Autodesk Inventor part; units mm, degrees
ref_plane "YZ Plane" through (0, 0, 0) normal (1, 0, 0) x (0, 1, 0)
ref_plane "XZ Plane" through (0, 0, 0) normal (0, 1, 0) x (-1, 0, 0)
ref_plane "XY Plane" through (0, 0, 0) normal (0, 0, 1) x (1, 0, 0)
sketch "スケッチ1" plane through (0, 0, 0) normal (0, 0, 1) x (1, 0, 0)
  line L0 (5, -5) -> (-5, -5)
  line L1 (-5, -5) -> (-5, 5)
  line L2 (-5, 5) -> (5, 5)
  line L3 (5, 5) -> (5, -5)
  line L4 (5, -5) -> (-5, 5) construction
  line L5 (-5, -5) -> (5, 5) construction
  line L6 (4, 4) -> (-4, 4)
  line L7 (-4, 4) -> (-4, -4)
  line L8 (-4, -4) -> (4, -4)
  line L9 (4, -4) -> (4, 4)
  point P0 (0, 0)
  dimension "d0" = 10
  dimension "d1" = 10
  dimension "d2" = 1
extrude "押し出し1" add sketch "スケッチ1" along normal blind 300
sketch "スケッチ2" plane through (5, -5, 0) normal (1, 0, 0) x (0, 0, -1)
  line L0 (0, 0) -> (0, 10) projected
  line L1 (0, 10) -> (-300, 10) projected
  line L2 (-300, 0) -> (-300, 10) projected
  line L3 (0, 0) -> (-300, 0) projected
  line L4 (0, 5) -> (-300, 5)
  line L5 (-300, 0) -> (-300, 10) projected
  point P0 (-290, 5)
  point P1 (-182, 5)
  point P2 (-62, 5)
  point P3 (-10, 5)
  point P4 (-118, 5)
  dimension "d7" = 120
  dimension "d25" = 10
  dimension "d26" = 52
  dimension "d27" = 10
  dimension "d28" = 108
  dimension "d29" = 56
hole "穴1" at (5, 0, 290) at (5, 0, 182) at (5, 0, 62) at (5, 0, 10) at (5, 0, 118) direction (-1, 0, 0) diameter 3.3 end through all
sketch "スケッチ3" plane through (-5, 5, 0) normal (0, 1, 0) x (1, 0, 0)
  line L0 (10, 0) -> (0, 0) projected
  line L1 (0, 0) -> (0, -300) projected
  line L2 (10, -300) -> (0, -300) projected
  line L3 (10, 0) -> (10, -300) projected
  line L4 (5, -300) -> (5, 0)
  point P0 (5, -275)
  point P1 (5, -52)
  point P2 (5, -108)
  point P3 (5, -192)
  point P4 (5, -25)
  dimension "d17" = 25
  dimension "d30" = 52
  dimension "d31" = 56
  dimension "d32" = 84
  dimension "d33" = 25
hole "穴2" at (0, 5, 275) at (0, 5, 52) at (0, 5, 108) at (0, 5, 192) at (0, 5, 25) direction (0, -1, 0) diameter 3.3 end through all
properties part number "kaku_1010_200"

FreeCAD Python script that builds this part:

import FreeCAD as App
import Part
import Sketcher


def add_polygon(sketch, points):
    """Adds a closed chain of lines whose ends are joined by coincident constraints."""
    first, n = sketch.GeometryCount, len(points)
    for a, b in zip(points, points[1:] + points[:1]):
        sketch.addGeometry(Part.LineSegment(App.Vector(*a, 0), App.Vector(*b, 0)), False)
    for i in range(n):
        sketch.addConstraint(Sketcher.Constraint("Coincident", first + i, 2, first + (i + 1) % n, 1))

doc = App.newDocument("Part")
body = doc.addObject("PartDesign::Body", "Body")

# Sketch on XY plane
sketch1 = body.newObject("Sketcher::SketchObject", "Sketch")
sketch1.AttachmentSupport = (doc.getObject("XY_Plane"), [""])
sketch1.MapMode = "FlatFace"
add_polygon(sketch1, [(-5, -5), (5, -5), (5, 5), (-5, 5)])  # lines 0-3
add_polygon(sketch1, [(-4, 4), (4, 4), (4, -4), (-4, -4)])  # lines 4-7
sketch1.addConstraint([
    Sketcher.Constraint("Horizontal", 0),
    Sketcher.Constraint("Vertical", 1),
    Sketcher.Constraint("Horizontal", 2),
    Sketcher.Constraint("Vertical", 3),
    Sketcher.Constraint("Horizontal", 4),
    Sketcher.Constraint("Vertical", 5),
    Sketcher.Constraint("Horizontal", 6),
    Sketcher.Constraint("Vertical", 7),
    Sketcher.Constraint("Symmetric", 0, 2, 2, 2, -1, 1),
    Sketcher.Constraint("Symmetric", 4, 2, 6, 2, -1, 1),
    Sketcher.Constraint("Equal", 2, 1),
    Sketcher.Constraint("Equal", 6, 5),
    Sketcher.Constraint("DistanceX", 0, 1, 0, 2, 10.0),
    Sketcher.Constraint("DistanceX", 4, 2, 1, 2, 1.0),
])
pad1 = body.newObject("PartDesign::Pad", "Pad")
pad1.Profile = sketch1
pad1.Length = 300

# Sketch on YZ plane
sketch2 = body.newObject("Sketcher::SketchObject", "Sketch001")
sketch2.AttachmentSupport = (doc.getObject("YZ_Plane"), [""])
sketch2.MapMode = "FlatFace"
sketch2.AttachmentOffset = App.Placement(App.Vector(0, 0, 5), App.Rotation())
sketch2.addGeometry([
    Part.Circle(App.Vector(0, 290, 0), App.Vector(0, 0, 1), 1.6),  # 0
    Part.Circle(App.Vector(0, 182, 0), App.Vector(0, 0, 1), 1.6),  # 1
    Part.Circle(App.Vector(0, 62, 0), App.Vector(0, 0, 1), 1.6),  # 2
    Part.Circle(App.Vector(0, 10, 0), App.Vector(0, 0, 1), 1.6),  # 3
    Part.Circle(App.Vector(0, 118, 0), App.Vector(0, 0, 1), 1.6),  # 4
], False)
sketch2.addConstraint([
    Sketcher.Constraint("Equal", 0, 1),
    Sketcher.Constraint("Equal", 1, 2),
    Sketcher.Constraint("Equal", 2, 3),
    Sketcher.Constraint("Equal", 3, 4),
    Sketcher.Constraint("PointOnObject", 0, 3, -2),
    Sketcher.Constraint("PointOnObject", 1, 3, -2),
    Sketcher.Constraint("PointOnObject", 2, 3, -2),
    Sketcher.Constraint("PointOnObject", 3, 3, -2),
    Sketcher.Constraint("PointOnObject", 4, 3, -2),
    Sketcher.Constraint("Diameter", 0, 3.3),
    Sketcher.Constraint("DistanceY", -1, 1, 0, 3, 290.0),
    Sketcher.Constraint("DistanceY", -1, 1, 1, 3, 182.0),
    Sketcher.Constraint("DistanceY", -1, 1, 2, 3, 62.0),
    Sketcher.Constraint("DistanceY", -1, 1, 3, 3, 10.0),
    Sketcher.Constraint("DistanceY", -1, 1, 4, 3, 118.0),
])
doc.recompute()
hole = body.newObject("PartDesign::Hole", "Hole")
hole.Profile = sketch2
hole.ThreadType = "None"
hole.Diameter = 3.3
hole.DepthType = "ThroughAll"

# Sketch on XZ plane
sketch3 = body.newObject("Sketcher::SketchObject", "Sketch002")
sketch3.AttachmentSupport = (doc.getObject("XZ_Plane"), [""])
sketch3.MapMode = "FlatFace"
sketch3.AttachmentOffset = App.Placement(App.Vector(0, 0, -5), App.Rotation())
sketch3.addGeometry([
    Part.Circle(App.Vector(0, 275, 0), App.Vector(0, 0, 1), 1.6),  # 0
    Part.Circle(App.Vector(0, 52, 0), App.Vector(0, 0, 1), 1.6),  # 1
    Part.Circle(App.Vector(0, 108, 0), App.Vector(0, 0, 1), 1.6),  # 2
    Part.Circle(App.Vector(0, 192, 0), App.Vector(0, 0, 1), 1.6),  # 3
    Part.Circle(App.Vector(0, 25, 0), App.Vector(0, 0, 1), 1.6),  # 4
], False)
sketch3.addConstraint([
    Sketcher.Constraint("Equal", 0, 1),
    Sketcher.Constraint("Equal", 1, 2),
    Sketcher.Constraint("Equal", 2, 3),
    Sketcher.Constraint("Equal", 3, 4),
    Sketcher.Constraint("PointOnObject", 0, 3, -2),
    Sketcher.Constraint("PointOnObject", 1, 3, -2),
    Sketcher.Constraint("PointOnObject", 2, 3, -2),
    Sketcher.Constraint("PointOnObject", 3, 3, -2),
    Sketcher.Constraint("PointOnObject", 4, 3, -2),
    Sketcher.Constraint("Diameter", 0, 3.3),
    Sketcher.Constraint("DistanceY", -1, 1, 0, 3, 275.0),
    Sketcher.Constraint("DistanceY", -1, 1, 1, 3, 52.0),
    Sketcher.Constraint("DistanceY", -1, 1, 2, 3, 108.0),
    Sketcher.Constraint("DistanceY", -1, 1, 3, 3, 192.0),
    Sketcher.Constraint("DistanceY", -1, 1, 4, 3, 25.0),
])
doc.recompute()
hole2 = body.newObject("PartDesign::Hole", "Hole001")
hole2.Profile = sketch3
hole2.ThreadType = "None"
hole2.Diameter = 3.3
hole2.DepthType = "ThroughAll"
hole2.Reversed = True

doc.recompute()
